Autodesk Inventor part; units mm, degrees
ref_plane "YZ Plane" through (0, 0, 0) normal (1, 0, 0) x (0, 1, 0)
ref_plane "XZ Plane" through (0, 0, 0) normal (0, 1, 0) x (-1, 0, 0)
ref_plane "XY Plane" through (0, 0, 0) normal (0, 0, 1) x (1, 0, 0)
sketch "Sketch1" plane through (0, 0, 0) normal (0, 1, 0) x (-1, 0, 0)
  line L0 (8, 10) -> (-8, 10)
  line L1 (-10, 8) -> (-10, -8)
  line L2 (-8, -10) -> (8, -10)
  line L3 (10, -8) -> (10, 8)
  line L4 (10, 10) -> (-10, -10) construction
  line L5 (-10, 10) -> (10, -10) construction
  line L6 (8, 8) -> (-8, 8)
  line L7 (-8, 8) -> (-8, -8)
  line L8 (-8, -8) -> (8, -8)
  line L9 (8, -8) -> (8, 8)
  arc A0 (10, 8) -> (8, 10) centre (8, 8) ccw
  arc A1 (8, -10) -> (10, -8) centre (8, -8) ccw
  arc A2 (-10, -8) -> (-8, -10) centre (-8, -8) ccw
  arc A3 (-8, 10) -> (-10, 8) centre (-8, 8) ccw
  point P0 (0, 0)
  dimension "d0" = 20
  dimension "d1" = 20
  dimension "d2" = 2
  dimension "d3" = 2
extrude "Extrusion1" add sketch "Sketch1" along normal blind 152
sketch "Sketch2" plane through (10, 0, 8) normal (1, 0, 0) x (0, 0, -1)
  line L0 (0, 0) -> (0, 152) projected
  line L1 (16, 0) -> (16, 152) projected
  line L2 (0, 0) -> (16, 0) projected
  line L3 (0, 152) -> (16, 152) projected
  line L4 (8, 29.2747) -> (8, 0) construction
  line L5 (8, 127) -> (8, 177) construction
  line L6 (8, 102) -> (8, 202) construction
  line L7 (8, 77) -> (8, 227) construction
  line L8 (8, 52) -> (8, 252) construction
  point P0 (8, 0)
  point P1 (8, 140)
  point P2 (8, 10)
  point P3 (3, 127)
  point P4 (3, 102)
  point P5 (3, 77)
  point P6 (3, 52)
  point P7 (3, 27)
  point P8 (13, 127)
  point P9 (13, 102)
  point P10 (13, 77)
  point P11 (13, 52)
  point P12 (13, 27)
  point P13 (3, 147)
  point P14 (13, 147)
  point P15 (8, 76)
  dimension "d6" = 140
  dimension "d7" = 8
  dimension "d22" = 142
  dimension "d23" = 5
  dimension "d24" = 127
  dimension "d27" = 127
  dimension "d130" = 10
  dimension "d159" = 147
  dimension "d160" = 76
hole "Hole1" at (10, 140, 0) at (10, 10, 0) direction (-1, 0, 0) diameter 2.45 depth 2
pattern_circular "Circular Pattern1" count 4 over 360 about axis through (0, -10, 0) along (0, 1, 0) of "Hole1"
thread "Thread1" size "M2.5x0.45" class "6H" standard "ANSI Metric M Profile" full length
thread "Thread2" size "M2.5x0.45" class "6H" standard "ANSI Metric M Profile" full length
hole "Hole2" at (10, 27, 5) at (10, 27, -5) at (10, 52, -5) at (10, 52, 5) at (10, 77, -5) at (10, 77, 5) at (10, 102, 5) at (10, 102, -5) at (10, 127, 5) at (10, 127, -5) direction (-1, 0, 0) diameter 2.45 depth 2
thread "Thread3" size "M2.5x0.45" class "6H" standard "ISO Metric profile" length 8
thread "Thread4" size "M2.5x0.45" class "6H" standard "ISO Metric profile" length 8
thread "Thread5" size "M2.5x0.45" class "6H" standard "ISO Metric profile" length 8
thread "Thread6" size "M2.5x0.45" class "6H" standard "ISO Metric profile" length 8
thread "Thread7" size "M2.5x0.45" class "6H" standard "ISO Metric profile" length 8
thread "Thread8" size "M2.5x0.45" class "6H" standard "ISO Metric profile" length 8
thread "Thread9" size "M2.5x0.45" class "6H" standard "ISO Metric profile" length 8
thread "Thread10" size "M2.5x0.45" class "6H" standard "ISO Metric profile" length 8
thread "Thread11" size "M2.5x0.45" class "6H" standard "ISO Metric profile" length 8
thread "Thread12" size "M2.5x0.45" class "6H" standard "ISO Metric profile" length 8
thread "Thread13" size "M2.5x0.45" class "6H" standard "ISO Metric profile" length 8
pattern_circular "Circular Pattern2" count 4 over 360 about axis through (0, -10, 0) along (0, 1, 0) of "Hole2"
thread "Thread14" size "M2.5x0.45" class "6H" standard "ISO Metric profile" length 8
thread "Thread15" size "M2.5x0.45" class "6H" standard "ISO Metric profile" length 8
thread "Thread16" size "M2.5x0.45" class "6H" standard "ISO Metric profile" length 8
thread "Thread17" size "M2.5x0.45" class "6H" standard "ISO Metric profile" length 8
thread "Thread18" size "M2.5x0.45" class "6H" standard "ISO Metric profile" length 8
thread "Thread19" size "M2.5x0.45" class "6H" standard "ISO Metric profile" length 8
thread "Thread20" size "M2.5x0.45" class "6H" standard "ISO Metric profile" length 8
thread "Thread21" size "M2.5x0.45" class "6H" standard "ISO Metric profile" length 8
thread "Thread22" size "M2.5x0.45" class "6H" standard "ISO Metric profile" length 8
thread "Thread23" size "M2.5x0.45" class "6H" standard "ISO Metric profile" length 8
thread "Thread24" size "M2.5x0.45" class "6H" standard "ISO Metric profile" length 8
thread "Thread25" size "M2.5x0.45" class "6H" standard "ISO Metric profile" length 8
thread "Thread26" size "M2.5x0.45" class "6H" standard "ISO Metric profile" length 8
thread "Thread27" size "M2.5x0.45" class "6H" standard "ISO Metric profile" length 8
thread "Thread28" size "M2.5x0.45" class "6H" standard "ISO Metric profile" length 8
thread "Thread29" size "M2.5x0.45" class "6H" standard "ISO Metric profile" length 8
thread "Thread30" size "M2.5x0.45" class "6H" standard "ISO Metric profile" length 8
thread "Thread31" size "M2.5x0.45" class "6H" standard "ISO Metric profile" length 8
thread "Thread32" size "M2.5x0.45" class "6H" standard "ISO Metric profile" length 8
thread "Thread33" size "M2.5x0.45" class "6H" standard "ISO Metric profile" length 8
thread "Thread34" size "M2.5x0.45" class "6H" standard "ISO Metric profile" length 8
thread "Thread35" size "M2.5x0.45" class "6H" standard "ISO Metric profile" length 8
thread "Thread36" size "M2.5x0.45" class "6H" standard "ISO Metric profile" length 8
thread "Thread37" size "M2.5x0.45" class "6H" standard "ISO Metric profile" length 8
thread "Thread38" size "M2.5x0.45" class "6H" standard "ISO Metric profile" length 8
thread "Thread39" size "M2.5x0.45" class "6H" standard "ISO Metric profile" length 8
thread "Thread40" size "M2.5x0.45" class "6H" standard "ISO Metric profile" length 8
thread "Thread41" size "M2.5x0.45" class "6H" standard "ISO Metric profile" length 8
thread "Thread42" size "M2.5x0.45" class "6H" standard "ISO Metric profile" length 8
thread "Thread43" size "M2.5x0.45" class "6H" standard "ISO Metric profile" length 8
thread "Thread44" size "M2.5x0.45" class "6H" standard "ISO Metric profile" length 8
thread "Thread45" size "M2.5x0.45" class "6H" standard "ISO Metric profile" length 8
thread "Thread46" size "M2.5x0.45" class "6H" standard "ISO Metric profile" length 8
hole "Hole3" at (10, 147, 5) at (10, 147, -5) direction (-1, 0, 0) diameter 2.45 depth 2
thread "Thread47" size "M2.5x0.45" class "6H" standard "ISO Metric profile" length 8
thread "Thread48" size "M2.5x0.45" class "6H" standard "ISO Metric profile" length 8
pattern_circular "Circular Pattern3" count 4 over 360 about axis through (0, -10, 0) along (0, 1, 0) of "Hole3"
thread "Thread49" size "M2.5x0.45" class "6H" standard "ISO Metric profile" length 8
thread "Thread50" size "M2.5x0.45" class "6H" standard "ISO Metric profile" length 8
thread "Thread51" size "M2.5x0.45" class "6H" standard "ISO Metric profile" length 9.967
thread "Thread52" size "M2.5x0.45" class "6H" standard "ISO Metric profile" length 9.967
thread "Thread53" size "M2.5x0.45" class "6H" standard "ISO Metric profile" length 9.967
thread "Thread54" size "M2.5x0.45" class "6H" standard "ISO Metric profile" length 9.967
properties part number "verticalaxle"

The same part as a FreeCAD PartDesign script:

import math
import FreeCAD as App
import Part
import Sketcher
from FreeCAD import Vector

doc = App.newDocument("Part")
body = doc.addObject("PartDesign::Body", "Body")

sketch1 = doc.addObject("Sketcher::SketchObject", "Sketch")
body.addObject(sketch1)
sketch1.AttachmentSupport = (doc.XZ_Plane, [""])
sketch1.MapMode = "FlatFace"
sketch1.addGeometry([
    Part.ArcOfCircle(Part.Circle(Vector(-8, 8, 0), Vector(0, 0, 1), 2), math.radians(90), math.radians(180)),
    Part.LineSegment(Vector(-8, 10, 0), Vector(8, 10, 0)),
    Part.ArcOfCircle(Part.Circle(Vector(8, 8, 0), Vector(0, 0, 1), 2), math.radians(0), math.radians(90)),
    Part.LineSegment(Vector(10, 8, 0), Vector(10, -8, 0)),
    Part.ArcOfCircle(Part.Circle(Vector(8, -8, 0), Vector(0, 0, 1), 2), math.radians(-90), math.radians(0)),
    Part.LineSegment(Vector(8, -10, 0), Vector(-8, -10, 0)),
    Part.ArcOfCircle(Part.Circle(Vector(-8, -8, 0), Vector(0, 0, 1), 2), math.radians(180), math.radians(270)),
    Part.LineSegment(Vector(-10, -8, 0), Vector(-10, 8, 0)),
    Part.LineSegment(Vector(8, 8, 0), Vector(-8, 8, 0)),
    Part.LineSegment(Vector(-8, 8, 0), Vector(-8, -8, 0)),
    Part.LineSegment(Vector(-8, -8, 0), Vector(8, -8, 0)),
    Part.LineSegment(Vector(8, -8, 0), Vector(8, 8, 0)),
], False)
sketch1.addConstraint([
    Sketcher.Constraint("Tangent", 0, 1, 1, 1),
    Sketcher.Constraint("Tangent", 1, 2, 2, 2),
    Sketcher.Constraint("Tangent", 2, 1, 3, 1),
    Sketcher.Constraint("Tangent", 3, 2, 4, 2),
    Sketcher.Constraint("Tangent", 4, 1, 5, 1),
    Sketcher.Constraint("Tangent", 5, 2, 6, 2),
    Sketcher.Constraint("Tangent", 6, 1, 7, 1),
    Sketcher.Constraint("Tangent", 7, 2, 0, 2),
    Sketcher.Constraint("Coincident", 8, 2, 9, 1),
    Sketcher.Constraint("Coincident", 9, 2, 10, 1),
    Sketcher.Constraint("Coincident", 10, 2, 11, 1),
    Sketcher.Constraint("Coincident", 11, 2, 8, 1),
    Sketcher.Constraint("Horizontal", 1),
    Sketcher.Constraint("Vertical", 3),
    Sketcher.Constraint("Horizontal", 5),
    Sketcher.Constraint("Vertical", 7),
    Sketcher.Constraint("Horizontal", 8),
    Sketcher.Constraint("Vertical", 9),
    Sketcher.Constraint("Horizontal", 10),
    Sketcher.Constraint("Vertical", 11),
    Sketcher.Constraint("Coincident", 8, 2, 0, 3),
    Sketcher.Constraint("Coincident", 9, 2, 6, 3),
    Sketcher.Constraint("Coincident", 10, 2, 4, 3),
    Sketcher.Constraint("Equal", 0, 2),
    Sketcher.Constraint("Symmetric", 0, 3, 4, 3, -1, 1),
    Sketcher.Constraint("Equal", 10, 3),
    Sketcher.Constraint("Radius", 0, 2.0),
    Sketcher.Constraint("DistanceX", 1, 1, 1, 2, 16.0),
])
pad1 = doc.addObject("PartDesign::Pad", "Pad")
body.addObject(pad1)
pad1.Profile = sketch1
pad1.Length = 152
pad1.Reversed = True

sketch2 = doc.addObject("Sketcher::SketchObject", "Sketch001")
body.addObject(sketch2)
sketch2.AttachmentSupport = (doc.YZ_Plane, [""])
sketch2.MapMode = "FlatFace"
sketch2.AttachmentOffset = App.Placement(Vector(0, 0, 10), App.Rotation())
sketch2.addGeometry([
    Part.Circle(Vector(140, 0, 0), Vector(0, 0, 1), 1.2),
    Part.Circle(Vector(10, 0, 0), Vector(0, 0, 1), 1.2),
], False)
sketch2.addConstraint([
    Sketcher.Constraint("Equal", 0, 1),
    Sketcher.Constraint("PointOnObject", 0, 3, -1),
    Sketcher.Constraint("PointOnObject", 1, 3, -1),
    Sketcher.Constraint("Diameter", 0, 2.45),
    Sketcher.Constraint("DistanceX", -1, 1, 0, 3, 140.0),
    Sketcher.Constraint("DistanceX", -1, 1, 1, 3, 10.0),
])
doc.recompute()
hole = doc.addObject("PartDesign::Hole", "Hole")
body.addObject(hole)
hole.Profile = sketch2
hole.ThreadType = "None"
hole.Diameter = 2.45
hole.DepthType = "Dimension"
hole.Depth = 2
hole.DrillPoint = "Flat"
doc.recompute()

polarpattern = doc.addObject("PartDesign::PolarPattern", "PolarPattern")
body.addObject(polarpattern)
polarpattern.Originals = [hole]
polarpattern.Axis = (doc.Y_Axis, [""])
polarpattern.Angle = 360
polarpattern.Occurrences = 4
body.Tip = polarpattern

sketch3 = doc.addObject("Sketcher::SketchObject", "Sketch002")
body.addObject(sketch3)
sketch3.AttachmentSupport = (doc.YZ_Plane, [""])
sketch3.MapMode = "FlatFace"
sketch3.AttachmentOffset = App.Placement(Vector(0, 0, 10), App.Rotation())
sketch3.addGeometry([
    Part.Circle(Vector(27, 5, 0), Vector(0, 0, 1), 1.2),
    Part.Circle(Vector(27, -5, 0), Vector(0, 0, 1), 1.2),
    Part.Circle(Vector(52, -5, 0), Vector(0, 0, 1), 1.2),
    Part.Circle(Vector(52, 5, 0), Vector(0, 0, 1), 1.2),
    Part.Circle(Vector(77, -5, 0), Vector(0, 0, 1), 1.2),
    Part.Circle(Vector(77, 5, 0), Vector(0, 0, 1), 1.2),
    Part.Circle(Vector(102, 5, 0), Vector(0, 0, 1), 1.2),
    Part.Circle(Vector(102, -5, 0), Vector(0, 0, 1), 1.2),
    Part.Circle(Vector(127, 5, 0), Vector(0, 0, 1), 1.2),
    Part.Circle(Vector(127, -5, 0), Vector(0, 0, 1), 1.2),
], False)
sketch3.addConstraint([
    Sketcher.Constraint("Equal", 0, 1),
    Sketcher.Constraint("Equal", 1, 2),
    Sketcher.Constraint("Equal", 2, 3),
    Sketcher.Constraint("Equal", 3, 4),
    Sketcher.Constraint("Equal", 4, 5),
    Sketcher.Constraint("Equal", 5, 6),
    Sketcher.Constraint("Equal", 6, 7),
    Sketcher.Constraint("Equal", 7, 8),
    Sketcher.Constraint("Equal", 8, 9),
    Sketcher.Constraint("Symmetric", 0, 3, 1, 3, -1),
    Sketcher.Constraint("Symmetric", 2, 3, 3, 3, -1),
    Sketcher.Constraint("Symmetric", 4, 3, 5, 3, -1),
    Sketcher.Constraint("Symmetric", 6, 3, 7, 3, -1),
    Sketcher.Constraint("Symmetric", 8, 3, 9, 3, -1),
    Sketcher.Constraint("Horizontal", 1, 3, 2, 3),
    Sketcher.Constraint("Horizontal", 2, 3, 4, 3),
    Sketcher.Constraint("Horizontal", 5, 3, 6, 3),
    Sketcher.Constraint("Horizontal", 6, 3, 8, 3),
    Sketcher.Constraint("Diameter", 0, 2.45),
    Sketcher.Constraint("DistanceX", -1, 1, 0, 3, 27.0),
    Sketcher.Constraint("DistanceY", -1, 1, 0, 3, 5.0),
    Sketcher.Constraint("DistanceX", -1, 1, 2, 3, 52.0),
    Sketcher.Constraint("DistanceX", -1, 1, 4, 3, 77.0),
    Sketcher.Constraint("DistanceX", -1, 1, 6, 3, 102.0),
    Sketcher.Constraint("DistanceX", -1, 1, 8, 3, 127.0),
])
doc.recompute()
hole2 = doc.addObject("PartDesign::Hole", "Hole001")
body.addObject(hole2)
hole2.Profile = sketch3
hole2.ThreadType = "None"
hole2.Diameter = 2.45
hole2.DepthType = "Dimension"
hole2.Depth = 2
hole2.DrillPoint = "Flat"
doc.recompute()

polarpattern2 = doc.addObject("PartDesign::PolarPattern", "PolarPattern001")
body.addObject(polarpattern2)
polarpattern2.Originals = [hole2]
polarpattern2.Axis = (doc.Y_Axis, [""])
polarpattern2.Angle = 360
polarpattern2.Occurrences = 4
body.Tip = polarpattern2

sketch4 = doc.addObject("Sketcher::SketchObject", "Sketch003")
body.addObject(sketch4)
sketch4.AttachmentSupport = (doc.YZ_Plane, [""])
sketch4.MapMode = "FlatFace"
sketch4.AttachmentOffset = App.Placement(Vector(0, 0, 10), App.Rotation())
sketch4.addGeometry([
    Part.Circle(Vector(147, 5, 0), Vector(0, 0, 1), 1.2),
    Part.Circle(Vector(147, -5, 0), Vector(0, 0, 1), 1.2),
], False)
sketch4.addConstraint([
    Sketcher.Constraint("Equal", 0, 1),
    Sketcher.Constraint("Symmetric", 0, 3, 1, 3, -1),
    Sketcher.Constraint("Diameter", 0, 2.45),
    Sketcher.Constraint("DistanceX", -1, 1, 0, 3, 147.0),
    Sketcher.Constraint("DistanceY", -1, 1, 0, 3, 5.0),
])
doc.recompute()
hole3 = doc.addObject("PartDesign::Hole", "Hole002")
body.addObject(hole3)
hole3.Profile = sketch4
hole3.ThreadType = "None"
hole3.Diameter = 2.45
hole3.DepthType = "Dimension"
hole3.Depth = 2
hole3.DrillPoint = "Flat"
doc.recompute()

polarpattern3 = doc.addObject("PartDesign::PolarPattern", "PolarPattern002")
body.addObject(polarpattern3)
polarpattern3.Originals = [hole3]
polarpattern3.Axis = (doc.Y_Axis, [""])
polarpattern3.Angle = 360
polarpattern3.Occurrences = 4
body.Tip = polarpattern3

doc.recompute()
